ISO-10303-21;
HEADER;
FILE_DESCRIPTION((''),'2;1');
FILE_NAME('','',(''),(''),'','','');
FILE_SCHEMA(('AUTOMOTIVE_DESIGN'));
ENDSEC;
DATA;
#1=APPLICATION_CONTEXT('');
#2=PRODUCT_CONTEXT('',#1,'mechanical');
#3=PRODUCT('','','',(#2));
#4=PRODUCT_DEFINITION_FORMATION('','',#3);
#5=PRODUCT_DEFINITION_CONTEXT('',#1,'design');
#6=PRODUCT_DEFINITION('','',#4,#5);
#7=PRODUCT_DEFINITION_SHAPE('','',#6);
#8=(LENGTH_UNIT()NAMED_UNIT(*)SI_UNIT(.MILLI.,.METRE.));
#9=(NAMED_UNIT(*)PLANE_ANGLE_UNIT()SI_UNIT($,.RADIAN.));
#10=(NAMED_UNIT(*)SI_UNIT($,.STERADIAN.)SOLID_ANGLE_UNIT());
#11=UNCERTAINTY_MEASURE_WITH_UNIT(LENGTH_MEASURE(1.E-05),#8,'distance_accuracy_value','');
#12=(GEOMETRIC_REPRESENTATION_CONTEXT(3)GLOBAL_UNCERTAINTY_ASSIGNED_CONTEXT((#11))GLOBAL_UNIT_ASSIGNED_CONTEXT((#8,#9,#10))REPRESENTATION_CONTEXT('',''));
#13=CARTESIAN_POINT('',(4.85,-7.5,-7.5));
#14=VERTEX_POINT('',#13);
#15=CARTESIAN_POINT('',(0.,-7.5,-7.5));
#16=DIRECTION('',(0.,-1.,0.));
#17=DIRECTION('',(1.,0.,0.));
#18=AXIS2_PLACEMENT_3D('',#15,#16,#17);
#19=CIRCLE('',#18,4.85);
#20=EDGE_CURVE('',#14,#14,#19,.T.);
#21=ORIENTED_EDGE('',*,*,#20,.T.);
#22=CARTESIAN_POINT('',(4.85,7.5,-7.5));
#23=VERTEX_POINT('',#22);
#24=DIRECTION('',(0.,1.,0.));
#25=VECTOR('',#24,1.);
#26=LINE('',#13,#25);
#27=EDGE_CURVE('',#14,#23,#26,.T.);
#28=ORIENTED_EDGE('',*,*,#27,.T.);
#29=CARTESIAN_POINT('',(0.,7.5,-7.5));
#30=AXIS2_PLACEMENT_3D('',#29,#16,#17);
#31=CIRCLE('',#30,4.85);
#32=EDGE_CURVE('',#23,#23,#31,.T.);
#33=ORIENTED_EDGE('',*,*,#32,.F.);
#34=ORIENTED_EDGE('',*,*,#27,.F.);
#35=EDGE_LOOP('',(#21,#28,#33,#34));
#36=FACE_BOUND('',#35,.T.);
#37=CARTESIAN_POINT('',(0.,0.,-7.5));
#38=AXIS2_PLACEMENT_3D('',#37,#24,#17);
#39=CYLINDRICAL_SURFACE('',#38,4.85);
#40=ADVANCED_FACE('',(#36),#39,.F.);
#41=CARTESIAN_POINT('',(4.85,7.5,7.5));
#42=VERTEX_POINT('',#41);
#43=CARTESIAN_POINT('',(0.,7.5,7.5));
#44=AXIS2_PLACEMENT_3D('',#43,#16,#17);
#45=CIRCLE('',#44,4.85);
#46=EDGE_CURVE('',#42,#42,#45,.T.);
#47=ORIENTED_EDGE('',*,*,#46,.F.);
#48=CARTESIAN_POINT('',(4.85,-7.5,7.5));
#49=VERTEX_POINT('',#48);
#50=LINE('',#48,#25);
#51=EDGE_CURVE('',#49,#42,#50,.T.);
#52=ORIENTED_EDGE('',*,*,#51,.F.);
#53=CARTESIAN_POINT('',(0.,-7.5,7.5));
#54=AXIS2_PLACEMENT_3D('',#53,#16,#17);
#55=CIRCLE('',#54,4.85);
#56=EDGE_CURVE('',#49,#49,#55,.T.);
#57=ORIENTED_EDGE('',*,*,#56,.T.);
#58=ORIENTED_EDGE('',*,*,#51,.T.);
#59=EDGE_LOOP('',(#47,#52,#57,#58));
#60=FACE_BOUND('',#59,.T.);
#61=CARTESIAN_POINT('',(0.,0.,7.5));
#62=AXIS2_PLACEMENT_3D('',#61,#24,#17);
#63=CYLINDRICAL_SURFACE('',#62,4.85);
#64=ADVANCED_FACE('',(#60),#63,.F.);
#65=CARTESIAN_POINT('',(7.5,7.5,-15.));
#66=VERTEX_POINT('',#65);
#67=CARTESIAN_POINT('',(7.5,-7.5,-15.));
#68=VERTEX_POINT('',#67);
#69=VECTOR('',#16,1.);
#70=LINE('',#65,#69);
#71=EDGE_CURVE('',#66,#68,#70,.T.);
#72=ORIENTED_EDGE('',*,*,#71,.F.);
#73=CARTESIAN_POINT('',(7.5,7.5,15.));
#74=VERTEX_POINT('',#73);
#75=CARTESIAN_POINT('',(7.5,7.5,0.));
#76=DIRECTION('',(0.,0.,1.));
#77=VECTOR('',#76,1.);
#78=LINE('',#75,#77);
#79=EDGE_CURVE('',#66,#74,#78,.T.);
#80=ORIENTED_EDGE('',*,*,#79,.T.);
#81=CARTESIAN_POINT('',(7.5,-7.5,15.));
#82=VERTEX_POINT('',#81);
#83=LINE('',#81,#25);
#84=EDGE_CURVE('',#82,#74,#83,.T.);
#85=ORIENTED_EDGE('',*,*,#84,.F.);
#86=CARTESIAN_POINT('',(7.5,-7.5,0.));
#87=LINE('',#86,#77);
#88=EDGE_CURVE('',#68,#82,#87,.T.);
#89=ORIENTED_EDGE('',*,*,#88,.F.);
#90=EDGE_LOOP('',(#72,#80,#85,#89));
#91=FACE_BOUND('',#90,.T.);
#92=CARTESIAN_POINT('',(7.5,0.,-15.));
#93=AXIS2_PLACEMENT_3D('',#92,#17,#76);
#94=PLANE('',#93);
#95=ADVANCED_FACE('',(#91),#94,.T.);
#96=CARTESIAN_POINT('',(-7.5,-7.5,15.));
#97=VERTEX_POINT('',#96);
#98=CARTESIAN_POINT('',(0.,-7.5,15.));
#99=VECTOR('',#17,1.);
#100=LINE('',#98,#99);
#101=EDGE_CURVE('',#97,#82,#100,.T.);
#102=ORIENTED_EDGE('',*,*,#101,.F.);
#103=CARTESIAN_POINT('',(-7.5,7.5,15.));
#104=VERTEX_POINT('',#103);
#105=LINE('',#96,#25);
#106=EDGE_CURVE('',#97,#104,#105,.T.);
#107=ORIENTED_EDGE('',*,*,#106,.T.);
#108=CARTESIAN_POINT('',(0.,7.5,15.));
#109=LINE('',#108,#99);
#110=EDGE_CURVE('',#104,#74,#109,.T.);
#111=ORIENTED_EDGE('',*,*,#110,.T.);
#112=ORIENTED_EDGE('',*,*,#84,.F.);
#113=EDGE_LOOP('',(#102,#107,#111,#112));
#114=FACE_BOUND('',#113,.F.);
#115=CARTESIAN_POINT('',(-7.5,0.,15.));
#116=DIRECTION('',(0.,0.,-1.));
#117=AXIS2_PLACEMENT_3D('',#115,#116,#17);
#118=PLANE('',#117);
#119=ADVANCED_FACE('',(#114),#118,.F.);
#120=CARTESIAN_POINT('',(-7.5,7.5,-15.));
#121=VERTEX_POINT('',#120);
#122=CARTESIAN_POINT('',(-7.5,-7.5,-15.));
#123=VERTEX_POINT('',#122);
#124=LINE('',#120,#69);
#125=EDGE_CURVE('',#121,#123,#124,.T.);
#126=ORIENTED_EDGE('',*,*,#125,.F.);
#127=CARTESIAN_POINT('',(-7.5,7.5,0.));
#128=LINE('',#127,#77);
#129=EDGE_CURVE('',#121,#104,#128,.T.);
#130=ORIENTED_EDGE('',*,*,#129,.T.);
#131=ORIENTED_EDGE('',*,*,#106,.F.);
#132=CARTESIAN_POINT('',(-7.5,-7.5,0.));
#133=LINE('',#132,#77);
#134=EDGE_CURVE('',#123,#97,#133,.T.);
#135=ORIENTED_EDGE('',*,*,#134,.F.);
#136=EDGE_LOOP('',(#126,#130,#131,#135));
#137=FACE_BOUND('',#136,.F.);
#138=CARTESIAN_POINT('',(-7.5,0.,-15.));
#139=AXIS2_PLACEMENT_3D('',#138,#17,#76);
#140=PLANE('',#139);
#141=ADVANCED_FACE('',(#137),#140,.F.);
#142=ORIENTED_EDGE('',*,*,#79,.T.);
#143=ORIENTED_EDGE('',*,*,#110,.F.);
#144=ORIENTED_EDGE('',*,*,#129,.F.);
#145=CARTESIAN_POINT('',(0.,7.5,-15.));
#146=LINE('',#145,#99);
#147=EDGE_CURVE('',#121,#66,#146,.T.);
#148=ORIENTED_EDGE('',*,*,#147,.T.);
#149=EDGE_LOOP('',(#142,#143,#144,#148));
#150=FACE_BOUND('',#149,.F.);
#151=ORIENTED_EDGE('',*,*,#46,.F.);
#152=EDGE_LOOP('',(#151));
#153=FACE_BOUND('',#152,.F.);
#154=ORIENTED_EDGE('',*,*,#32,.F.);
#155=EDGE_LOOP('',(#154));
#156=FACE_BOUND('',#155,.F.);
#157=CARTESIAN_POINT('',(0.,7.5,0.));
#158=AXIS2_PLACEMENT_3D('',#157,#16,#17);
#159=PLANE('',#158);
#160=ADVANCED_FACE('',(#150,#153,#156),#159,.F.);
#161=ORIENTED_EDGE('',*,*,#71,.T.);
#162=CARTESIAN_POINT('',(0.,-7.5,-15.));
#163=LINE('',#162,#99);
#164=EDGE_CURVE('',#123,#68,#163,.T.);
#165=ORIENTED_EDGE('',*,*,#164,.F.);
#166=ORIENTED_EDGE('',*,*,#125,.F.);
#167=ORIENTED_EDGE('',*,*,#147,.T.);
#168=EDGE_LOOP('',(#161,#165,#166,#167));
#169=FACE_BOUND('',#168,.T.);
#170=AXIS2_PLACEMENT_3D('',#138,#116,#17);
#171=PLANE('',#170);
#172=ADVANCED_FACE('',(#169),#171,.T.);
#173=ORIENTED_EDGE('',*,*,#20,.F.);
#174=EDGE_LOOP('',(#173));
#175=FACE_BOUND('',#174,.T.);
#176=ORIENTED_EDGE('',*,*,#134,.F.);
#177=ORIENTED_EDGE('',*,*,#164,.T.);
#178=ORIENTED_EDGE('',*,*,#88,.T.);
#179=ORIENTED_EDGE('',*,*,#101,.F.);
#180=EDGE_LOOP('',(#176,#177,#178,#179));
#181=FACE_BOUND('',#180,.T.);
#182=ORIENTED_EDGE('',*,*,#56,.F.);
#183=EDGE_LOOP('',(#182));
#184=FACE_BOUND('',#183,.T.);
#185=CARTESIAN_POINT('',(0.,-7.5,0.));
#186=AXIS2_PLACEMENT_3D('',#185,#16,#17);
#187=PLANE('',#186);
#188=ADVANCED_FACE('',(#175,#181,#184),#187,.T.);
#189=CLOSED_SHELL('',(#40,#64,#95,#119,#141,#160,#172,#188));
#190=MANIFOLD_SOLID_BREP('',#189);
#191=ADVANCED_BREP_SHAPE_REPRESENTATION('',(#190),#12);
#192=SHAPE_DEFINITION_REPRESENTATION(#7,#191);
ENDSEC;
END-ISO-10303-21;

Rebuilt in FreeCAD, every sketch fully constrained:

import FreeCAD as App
import Part
import Sketcher

V = App.Vector


def add_polygon(sketch, points):
    """Adds a closed chain of lines whose ends are joined by coincident constraints."""
    first, n = sketch.GeometryCount, len(points)
    for a, b in zip(points, points[1:] + points[:1]):
        sketch.addGeometry(Part.LineSegment(App.Vector(*a, 0), App.Vector(*b, 0)), False)
    for i in range(n):
        sketch.addConstraint(Sketcher.Constraint("Coincident", first + i, 2, first + (i + 1) % n, 1))

doc = App.newDocument("Part")
params = doc.addObject("Spreadsheet::Sheet", "Params")
for row, (alias, value) in enumerate([
    ("sketch1_diameter", "9.7 mm"),
    ("sketch1_width", "15 mm"),
    ("sketch1_height", "30 mm"),
    ("pad1_length", "15 mm"),
], start=1):
    params.set(f"A{row}", alias)
    params.set(f"B{row}", "=" + value)
    params.setAlias(f"B{row}", alias)

body = doc.addObject("PartDesign::Body", "Body")

# Sketch on XZ plane
sketch1 = body.newObject("Sketcher::SketchObject", "Sketch")
sketch1.AttachmentSupport = (doc.getObject("XZ_Plane"), [""])
sketch1.MapMode = "FlatFace"
add_polygon(sketch1, [(-7.5, 15), (-7.5, -15), (7.5, -15), (7.5, 15)])  # lines 0-3
sketch1.addGeometry(Part.Circle(V(0, -7.5, 0), V(0, 0, 1), 4.85), False)  # 4
sketch1.addGeometry(Part.Circle(V(0, 7.5, 0), V(0, 0, 1), 4.85), False)  # 5
sketch1.addConstraint([
    Sketcher.Constraint("Vertical", 0),
    Sketcher.Constraint("Horizontal", 1),
    Sketcher.Constraint("Vertical", 2),
    Sketcher.Constraint("Horizontal", 3),
    Sketcher.Constraint("Equal", 4, 5),
    Sketcher.Constraint("Symmetric", 4, 3, 5, 3, -1, 1),
    Sketcher.Constraint("Symmetric", 0, 2, 2, 2, -1, 1),
    Sketcher.Constraint("PointOnObject", 4, 3, -2),
    Sketcher.Constraint("Diameter", 4, 9.7),
    Sketcher.Constraint("DistanceX", 1, 1, 1, 2, 15.0),
    Sketcher.Constraint("DistanceY", 0, 2, 0, 1, 30.0),
    Sketcher.Constraint("DistanceY", 4, 3, 5, 3, 15.0),
])
sketch1.setExpression("Constraints[12]", "Params.sketch1_diameter")
sketch1.setExpression("Constraints[13]", "Params.sketch1_width")
sketch1.setExpression("Constraints[14]", "Params.sketch1_height")
pad1 = body.newObject("PartDesign::Pad", "Pad")
pad1.Profile = sketch1
pad1.setExpression("Length", "Params.pad1_length")
pad1.Midplane = True

doc.recompute()
